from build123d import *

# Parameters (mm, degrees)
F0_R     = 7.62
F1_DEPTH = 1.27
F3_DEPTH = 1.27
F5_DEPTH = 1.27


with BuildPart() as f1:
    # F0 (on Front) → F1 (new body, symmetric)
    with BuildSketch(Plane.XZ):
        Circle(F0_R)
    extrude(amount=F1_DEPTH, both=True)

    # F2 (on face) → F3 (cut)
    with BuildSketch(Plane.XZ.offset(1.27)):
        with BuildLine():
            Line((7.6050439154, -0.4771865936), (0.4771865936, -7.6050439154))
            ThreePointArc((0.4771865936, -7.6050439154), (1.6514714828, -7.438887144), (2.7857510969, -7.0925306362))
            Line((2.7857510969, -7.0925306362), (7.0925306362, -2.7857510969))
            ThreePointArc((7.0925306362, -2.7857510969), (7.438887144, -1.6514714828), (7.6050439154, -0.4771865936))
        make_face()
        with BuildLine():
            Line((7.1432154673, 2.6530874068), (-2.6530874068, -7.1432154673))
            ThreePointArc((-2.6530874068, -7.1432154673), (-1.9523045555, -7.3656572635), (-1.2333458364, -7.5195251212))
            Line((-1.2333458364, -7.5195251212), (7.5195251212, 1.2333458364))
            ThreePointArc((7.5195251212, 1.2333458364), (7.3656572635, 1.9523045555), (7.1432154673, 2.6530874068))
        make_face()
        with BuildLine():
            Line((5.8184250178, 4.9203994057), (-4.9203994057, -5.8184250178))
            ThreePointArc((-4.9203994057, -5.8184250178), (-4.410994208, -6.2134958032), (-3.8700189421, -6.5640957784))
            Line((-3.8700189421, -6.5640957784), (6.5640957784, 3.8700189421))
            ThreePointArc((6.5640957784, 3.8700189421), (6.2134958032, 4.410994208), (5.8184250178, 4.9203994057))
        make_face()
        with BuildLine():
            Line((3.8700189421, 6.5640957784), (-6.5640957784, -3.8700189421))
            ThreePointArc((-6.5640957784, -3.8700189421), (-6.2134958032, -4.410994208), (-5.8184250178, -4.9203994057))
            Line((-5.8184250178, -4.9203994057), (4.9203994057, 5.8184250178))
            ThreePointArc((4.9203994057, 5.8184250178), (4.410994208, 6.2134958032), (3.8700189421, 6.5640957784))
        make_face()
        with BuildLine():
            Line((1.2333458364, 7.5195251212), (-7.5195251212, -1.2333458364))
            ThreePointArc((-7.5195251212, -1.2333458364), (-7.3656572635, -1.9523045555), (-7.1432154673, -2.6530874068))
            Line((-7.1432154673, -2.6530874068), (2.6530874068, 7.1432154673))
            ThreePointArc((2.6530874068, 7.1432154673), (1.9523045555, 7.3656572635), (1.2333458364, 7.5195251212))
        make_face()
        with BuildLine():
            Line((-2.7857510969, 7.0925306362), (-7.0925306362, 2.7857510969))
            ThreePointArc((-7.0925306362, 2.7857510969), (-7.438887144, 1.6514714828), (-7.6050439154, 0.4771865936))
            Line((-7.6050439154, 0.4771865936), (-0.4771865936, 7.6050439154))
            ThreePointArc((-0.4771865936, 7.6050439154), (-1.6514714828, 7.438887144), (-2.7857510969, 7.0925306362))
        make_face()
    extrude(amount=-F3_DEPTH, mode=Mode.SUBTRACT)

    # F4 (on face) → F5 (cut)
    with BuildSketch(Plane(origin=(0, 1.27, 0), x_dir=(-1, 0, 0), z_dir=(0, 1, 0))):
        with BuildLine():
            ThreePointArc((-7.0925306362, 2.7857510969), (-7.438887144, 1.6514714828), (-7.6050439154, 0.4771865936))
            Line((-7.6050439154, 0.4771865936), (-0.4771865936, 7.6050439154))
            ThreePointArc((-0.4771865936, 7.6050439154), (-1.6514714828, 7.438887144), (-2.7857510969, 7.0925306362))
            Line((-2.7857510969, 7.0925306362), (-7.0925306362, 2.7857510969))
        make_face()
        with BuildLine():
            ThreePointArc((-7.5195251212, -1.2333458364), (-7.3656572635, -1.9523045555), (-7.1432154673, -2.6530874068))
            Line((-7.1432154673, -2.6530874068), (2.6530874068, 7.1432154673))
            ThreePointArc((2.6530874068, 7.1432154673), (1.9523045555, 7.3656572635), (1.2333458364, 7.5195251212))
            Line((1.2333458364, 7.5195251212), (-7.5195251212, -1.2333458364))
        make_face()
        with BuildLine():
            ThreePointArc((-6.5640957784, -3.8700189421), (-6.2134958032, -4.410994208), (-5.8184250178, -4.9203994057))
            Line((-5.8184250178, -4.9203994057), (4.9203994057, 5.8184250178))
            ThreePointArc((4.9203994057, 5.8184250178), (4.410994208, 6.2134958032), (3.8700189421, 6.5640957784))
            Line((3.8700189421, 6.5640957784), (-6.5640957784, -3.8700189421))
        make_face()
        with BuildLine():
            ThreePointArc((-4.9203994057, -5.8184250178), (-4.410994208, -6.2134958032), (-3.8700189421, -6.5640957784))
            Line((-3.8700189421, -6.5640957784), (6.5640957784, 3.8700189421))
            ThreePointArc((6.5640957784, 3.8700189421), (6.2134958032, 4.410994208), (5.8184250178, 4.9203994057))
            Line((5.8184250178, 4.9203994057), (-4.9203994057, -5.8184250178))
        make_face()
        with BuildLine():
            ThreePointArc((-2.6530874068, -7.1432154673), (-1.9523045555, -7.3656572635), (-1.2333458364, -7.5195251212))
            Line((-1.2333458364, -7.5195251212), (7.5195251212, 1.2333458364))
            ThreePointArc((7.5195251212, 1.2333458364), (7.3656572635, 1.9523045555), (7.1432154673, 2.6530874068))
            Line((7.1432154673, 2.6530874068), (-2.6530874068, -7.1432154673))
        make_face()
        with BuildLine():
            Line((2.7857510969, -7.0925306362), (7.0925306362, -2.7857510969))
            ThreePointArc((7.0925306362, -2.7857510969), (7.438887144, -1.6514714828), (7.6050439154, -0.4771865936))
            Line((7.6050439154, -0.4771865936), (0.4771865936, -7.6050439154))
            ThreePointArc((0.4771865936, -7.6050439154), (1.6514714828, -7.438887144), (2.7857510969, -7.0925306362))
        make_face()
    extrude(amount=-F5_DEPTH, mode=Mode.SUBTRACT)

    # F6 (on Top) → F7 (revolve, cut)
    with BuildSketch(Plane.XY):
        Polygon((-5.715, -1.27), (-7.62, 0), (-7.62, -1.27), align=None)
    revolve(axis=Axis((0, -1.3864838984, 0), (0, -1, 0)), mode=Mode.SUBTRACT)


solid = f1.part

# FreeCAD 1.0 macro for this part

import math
import FreeCAD as App
import Part
import Sketcher
from FreeCAD import Vector
Q = App.Units.Quantity


def add_polygon(sketch, points):
    """Adds a closed chain of lines whose ends are joined by coincident constraints."""
    first, n = sketch.GeometryCount, len(points)
    for a, b in zip(points, points[1:] + points[:1]):
        sketch.addGeometry(Part.LineSegment(App.Vector(*a, 0), App.Vector(*b, 0)), False)
    for i in range(n):
        sketch.addConstraint(Sketcher.Constraint("Coincident", first + i, 2, first + (i + 1) % n, 1))

doc = App.newDocument("Part")
body = doc.addObject("PartDesign::Body", "Body")

# Sketch on XZ plane
sketch1 = body.newObject("Sketcher::SketchObject", "Sketch")
sketch1.AttachmentSupport = (doc.getObject("XZ_Plane"), [""])
sketch1.MapMode = "FlatFace"
sketch1.addGeometry(Part.Circle(Vector(0, 0, 0), Vector(0, 0, 1), 8), False)
sketch1.addConstraint([
    Sketcher.Constraint("Coincident", 0, 3, -1, 1),
    Sketcher.Constraint("Diameter", 0, Q("0.6 in")),
])
pad1 = body.newObject("PartDesign::Pad", "Pad")
pad1.Profile = sketch1
pad1.Length = Q("0.1 in")
pad1.Midplane = True

# Sketch on XZ plane
sketch2 = body.newObject("Sketcher::SketchObject", "Sketch001")
sketch2.AttachmentSupport = (doc.getObject("XZ_Plane"), [""])
sketch2.MapMode = "FlatFace"
sketch2.AttachmentOffset = App.Placement(Vector(0, 0, 0.05 * 25.4), App.Rotation())
sketch2.addGeometry([
    Part.LineSegment(Vector(7.6, -0.5, 0), Vector(0.5, -7.6, 0)),  # 0
    Part.ArcOfCircle(Part.Circle(Vector(0, 0, 0), Vector(0, 0, 1), 7.6), math.radians(-86.41), math.radians(-68.56)),  # 1
    Part.LineSegment(Vector(2.8, -7.1, 0), Vector(7.1, -2.8, 0)),  # 2
    Part.ArcOfCircle(Part.Circle(Vector(0, 0, 0), Vector(0, 0, 1), 7.6), math.radians(-21.44), math.radians(-3.59)),  # 3
    Part.LineSegment(Vector(7.1, 2.7, 0), Vector(-2.7, -7.1, 0)),  # 4
    Part.ArcOfCircle(Part.Circle(Vector(0, 0, 0), Vector(0, 0, 1), 7.6), math.radians(-110.38), math.radians(-99.31)),  # 5
    Part.LineSegment(Vector(-1.2, -7.5, 0), Vector(7.5, 1.2, 0)),  # 6
    Part.ArcOfCircle(Part.Circle(Vector(0, 0, 0), Vector(0, 0, 1), 7.6), math.radians(9.31), math.radians(20.38)),  # 7
    Part.LineSegment(Vector(5.8, 4.9, 0), Vector(-4.9, -5.8, 0)),  # 8
    Part.ArcOfCircle(Part.Circle(Vector(0, 0, 0), Vector(0, 0, 1), 7.6), math.radians(-130.22), math.radians(-120.52)),  # 9
    Part.LineSegment(Vector(-3.9, -6.6, 0), Vector(6.6, 3.9, 0)),  # 10
    Part.ArcOfCircle(Part.Circle(Vector(0, 0, 0), Vector(0, 0, 1), 7.6), math.radians(30.52), math.radians(40.22)),  # 11
    Part.LineSegment(Vector(3.9, 6.6, 0), Vector(-6.6, -3.9, 0)),  # 12
    Part.ArcOfCircle(Part.Circle(Vector(0, 0, 0), Vector(0, 0, 1), 7.6), math.radians(-149.48), math.radians(-139.78)),  # 13
    Part.LineSegment(Vector(-5.8, -4.9, 0), Vector(4.9, 5.8, 0)),  # 14
    Part.ArcOfCircle(Part.Circle(Vector(0, 0, 0), Vector(0, 0, 1), 7.6), math.radians(49.78), math.radians(59.48)),  # 15
    Part.LineSegment(Vector(1.2, 7.5, 0), Vector(-7.5, -1.2, 0)),  # 16
    Part.ArcOfCircle(Part.Circle(Vector(0, 0, 0), Vector(0, 0, 1), 7.6), math.radians(-170.69), math.radians(-159.62)),  # 17
    Part.LineSegment(Vector(-7.1, -2.7, 0), Vector(2.7, 7.1, 0)),  # 18
    Part.ArcOfCircle(Part.Circle(Vector(0, 0, 0), Vector(0, 0, 1), 7.6), math.radians(69.62), math.radians(80.69)),  # 19
    Part.LineSegment(Vector(-2.8, 7.1, 0), Vector(-7.1, 2.8, 0)),  # 20
    Part.ArcOfCircle(Part.Circle(Vector(0, 0, 0), Vector(0, 0, 1), 7.6), math.radians(158.56), math.radians(176.41)),  # 21
    Part.LineSegment(Vector(-7.6, 0.5, 0), Vector(-0.5, 7.6, 0)),  # 22
    Part.ArcOfCircle(Part.Circle(Vector(0, 0, 0), Vector(0, 0, 1), 7.6), math.radians(93.59), math.radians(111.44)),  # 23
], False)
sketch2.addConstraint([
    Sketcher.Constraint("Coincident", 0, 2, 1, 1),
    Sketcher.Constraint("Coincident", 1, 2, 2, 1),
    Sketcher.Constraint("Coincident", 2, 2, 3, 1),
    Sketcher.Constraint("Coincident", 3, 2, 0, 1),
    Sketcher.Constraint("Coincident", 4, 2, 5, 1),
    Sketcher.Constraint("Coincident", 5, 2, 6, 1),
    Sketcher.Constraint("Coincident", 6, 2, 7, 1),
    Sketcher.Constraint("Coincident", 7, 2, 4, 1),
    Sketcher.Constraint("Coincident", 8, 2, 9, 1),
    Sketcher.Constraint("Coincident", 9, 2, 10, 1),
    Sketcher.Constraint("Coincident", 10, 2, 11, 1),
    Sketcher.Constraint("Coincident", 11, 2, 8, 1),
    Sketcher.Constraint("Coincident", 12, 2, 13, 1),
    Sketcher.Constraint("Coincident", 13, 2, 14, 1),
    Sketcher.Constraint("Coincident", 14, 2, 15, 1),
    Sketcher.Constraint("Coincident", 15, 2, 12, 1),
    Sketcher.Constraint("Coincident", 16, 2, 17, 1),
    Sketcher.Constraint("Coincident", 17, 2, 18, 1),
    Sketcher.Constraint("Coincident", 18, 2, 19, 1),
    Sketcher.Constraint("Coincident", 19, 2, 16, 1),
    Sketcher.Constraint("Coincident", 20, 2, 21, 1),
    Sketcher.Constraint("Coincident", 21, 2, 22, 1),
    Sketcher.Constraint("Coincident", 22, 2, 23, 1),
    Sketcher.Constraint("Coincident", 23, 2, 20, 1),
    Sketcher.Constraint("Coincident", 1, 3, -1, 1),
    Sketcher.Constraint("Coincident", 3, 3, -1, 1),
    Sketcher.Constraint("Coincident", 5, 3, -1, 1),
    Sketcher.Constraint("Coincident", 7, 3, -1, 1),
    Sketcher.Constraint("Coincident", 9, 3, -1, 1),
    Sketcher.Constraint("Coincident", 11, 3, -1, 1),
    Sketcher.Constraint("Coincident", 13, 3, -1, 1),
    Sketcher.Constraint("Coincident", 15, 3, -1, 1),
    Sketcher.Constraint("Coincident", 17, 3, -1, 1),
    Sketcher.Constraint("Coincident", 19, 3, -1, 1),
    Sketcher.Constraint("Coincident", 21, 3, -1, 1),
    Sketcher.Constraint("Coincident", 23, 3, -1, 1),
    Sketcher.Constraint("Equal", 1, 3),
    Sketcher.Constraint("Equal", 3, 5),
    Sketcher.Constraint("Equal", 5, 7),
    Sketcher.Constraint("Equal", 7, 9),
    Sketcher.Constraint("Equal", 9, 11),
    Sketcher.Constraint("Equal", 11, 13),
    Sketcher.Constraint("Equal", 13, 15),
    Sketcher.Constraint("Equal", 15, 17),
    Sketcher.Constraint("Equal", 17, 19),
    Sketcher.Constraint("Equal", 19, 21),
    Sketcher.Constraint("Equal", 21, 23),
    Sketcher.Constraint("Parallel", 0, 2),
    Sketcher.Constraint("Parallel", 2, 4),
    Sketcher.Constraint("Parallel", 4, 6),
    Sketcher.Constraint("Parallel", 6, 8),
    Sketcher.Constraint("Parallel", 8, 10),
    Sketcher.Constraint("Parallel", 10, 12),
    Sketcher.Constraint("Parallel", 12, 14),
    Sketcher.Constraint("Parallel", 14, 16),
    Sketcher.Constraint("Parallel", 16, 18),
    Sketcher.Constraint("Parallel", 18, 20),
    Sketcher.Constraint("Parallel", 20, 22),
    Sketcher.Constraint("Equal", 10, 12),
    Sketcher.Constraint("Equal", 8, 14),
    Sketcher.Constraint("Equal", 6, 16),
    Sketcher.Constraint("Equal", 4, 18),
    Sketcher.Constraint("Equal", 2, 20),
    Sketcher.Constraint("Equal", 0, 22),
    Sketcher.Constraint("Radius", 1, Q("0.3 in")),
    Sketcher.Constraint("Angle", 0, Q("-135 deg")),
    Sketcher.Constraint("DistanceY", 4, 2, 9, 2, Q("0.0228 in")),
    Sketcher.Constraint("DistanceX", 8, 2, -1, 1, Q("4.920399 mm")),
    Sketcher.Constraint("DistanceY", 5, 2, 8, 2, Q("1.7011 mm")),
    Sketcher.Constraint("DistanceX", -1, 1, 1, 2, Q("2.785751 mm")),
    Sketcher.Constraint("DistanceX", 9, 2, -1, 1, Q("3.870019 mm")),
    Sketcher.Constraint("DistanceY", 0, 2, 4, 2, Q("0.461828 mm")),
])
pocket1 = body.newObject("PartDesign::Pocket", "Pocket")
pocket1.Profile = sketch2
pocket1.Length = Q("0.05 in")

# Sketch on XZ plane
sketch3 = body.newObject("Sketcher::SketchObject", "Sketch002")
sketch3.AttachmentSupport = (doc.getObject("XZ_Plane"), [""])
sketch3.MapMode = "FlatFace"
sketch3.AttachmentOffset = App.Placement(Vector(0, 0, -0.05 * 25.4), App.Rotation())
sketch3.addGeometry([
    Part.ArcOfCircle(Part.Circle(Vector(0, 0, 0), Vector(0, 0, 1), 7.6), math.radians(3.59), math.radians(21.44)),  # 0
    Part.LineSegment(Vector(7.6, 0.5, 0), Vector(0.5, 7.6, 0)),  # 1
    Part.ArcOfCircle(Part.Circle(Vector(0, 0, 0), Vector(0, 0, 1), 7.6), math.radians(68.56), math.radians(86.41)),  # 2
    Part.LineSegment(Vector(2.8, 7.1, 0), Vector(7.1, 2.8, 0)),  # 3
    Part.ArcOfCircle(Part.Circle(Vector(0, 0, 0), Vector(0, 0, 1), 7.6), math.radians(-20.38), math.radians(-9.31)),  # 4
    Part.LineSegment(Vector(7.1, -2.7, 0), Vector(-2.7, 7.1, 0)),  # 5
    Part.ArcOfCircle(Part.Circle(Vector(0, 0, 0), Vector(0, 0, 1), 7.6), math.radians(99.31), math.radians(110.38)),  # 6
    Part.LineSegment(Vector(-1.2, 7.5, 0), Vector(7.5, -1.2, 0)),  # 7
    Part.ArcOfCircle(Part.Circle(Vector(0, 0, 0), Vector(0, 0, 1), 7.6), math.radians(-40.22), math.radians(-30.52)),  # 8
    Part.LineSegment(Vector(5.8, -4.9, 0), Vector(-4.9, 5.8, 0)),  # 9
    Part.ArcOfCircle(Part.Circle(Vector(0, 0, 0), Vector(0, 0, 1), 7.6), math.radians(120.52), math.radians(130.22)),  # 10
    Part.LineSegment(Vector(-3.9, 6.6, 0), Vector(6.6, -3.9, 0)),  # 11
    Part.ArcOfCircle(Part.Circle(Vector(0, 0, 0), Vector(0, 0, 1), 7.6), math.radians(-59.48), math.radians(-49.78)),  # 12
    Part.LineSegment(Vector(3.9, -6.6, 0), Vector(-6.6, 3.9, 0)),  # 13
    Part.ArcOfCircle(Part.Circle(Vector(0, 0, 0), Vector(0, 0, 1), 7.6), math.radians(139.78), math.radians(149.48)),  # 14
    Part.LineSegment(Vector(-5.8, 4.9, 0), Vector(4.9, -5.8, 0)),  # 15
    Part.ArcOfCircle(Part.Circle(Vector(0, 0, 0), Vector(0, 0, 1), 7.6), math.radians(-80.69), math.radians(-69.62)),  # 16
    Part.LineSegment(Vector(1.2, -7.5, 0), Vector(-7.5, 1.2, 0)),  # 17
    Part.ArcOfCircle(Part.Circle(Vector(0, 0, 0), Vector(0, 0, 1), 7.6), math.radians(159.62), math.radians(170.69)),  # 18
    Part.LineSegment(Vector(-7.1, 2.7, 0), Vector(2.7, -7.1, 0)),  # 19
    Part.LineSegment(Vector(-2.8, -7.1, 0), Vector(-7.1, -2.8, 0)),  # 20
    Part.ArcOfCircle(Part.Circle(Vector(0, 0, 0), Vector(0, 0, 1), 7.6), math.radians(-176.41), math.radians(-158.56)),  # 21
    Part.LineSegment(Vector(-7.6, -0.5, 0), Vector(-0.5, -7.6, 0)),  # 22
    Part.ArcOfCircle(Part.Circle(Vector(0, 0, 0), Vector(0, 0, 1), 7.6), math.radians(-111.44), math.radians(-93.59)),  # 23
], False)
sketch3.addConstraint([
    Sketcher.Constraint("Coincident", 0, 1, 1, 1),
    Sketcher.Constraint("Coincident", 1, 2, 2, 2),
    Sketcher.Constraint("Coincident", 2, 1, 3, 1),
    Sketcher.Constraint("Coincident", 3, 2, 0, 2),
    Sketcher.Constraint("Coincident", 4, 1, 5, 1),
    Sketcher.Constraint("Coincident", 5, 2, 6, 2),
    Sketcher.Constraint("Coincident", 6, 1, 7, 1),
    Sketcher.Constraint("Coincident", 7, 2, 4, 2),
    Sketcher.Constraint("Coincident", 8, 1, 9, 1),
    Sketcher.Constraint("Coincident", 9, 2, 10, 2),
    Sketcher.Constraint("Coincident", 10, 1, 11, 1),
    Sketcher.Constraint("Coincident", 11, 2, 8, 2),
    Sketcher.Constraint("Coincident", 12, 1, 13, 1),
    Sketcher.Constraint("Coincident", 13, 2, 14, 2),
    Sketcher.Constraint("Coincident", 14, 1, 15, 1),
    Sketcher.Constraint("Coincident", 15, 2, 12, 2),
    Sketcher.Constraint("Coincident", 16, 1, 17, 1),
    Sketcher.Constraint("Coincident", 17, 2, 18, 2),
    Sketcher.Constraint("Coincident", 18, 1, 19, 1),
    Sketcher.Constraint("Coincident", 19, 2, 16, 2),
    Sketcher.Constraint("Coincident", 20, 2, 21, 2),
    Sketcher.Constraint("Coincident", 21, 1, 22, 1),
    Sketcher.Constraint("Coincident", 22, 2, 23, 2),
    Sketcher.Constraint("Coincident", 23, 1, 20, 1),
    Sketcher.Constraint("Coincident", 0, 3, -1, 1),
    Sketcher.Constraint("Coincident", 2, 3, -1, 1),
    Sketcher.Constraint("Coincident", 4, 3, -1, 1),
    Sketcher.Constraint("Coincident", 6, 3, -1, 1),
    Sketcher.Constraint("Coincident", 8, 3, -1, 1),
    Sketcher.Constraint("Coincident", 10, 3, -1, 1),
    Sketcher.Constraint("Coincident", 12, 3, -1, 1),
    Sketcher.Constraint("Coincident", 14, 3, -1, 1),
    Sketcher.Constraint("Coincident", 16, 3, -1, 1),
    Sketcher.Constraint("Coincident", 18, 3, -1, 1),
    Sketcher.Constraint("Coincident", 21, 3, -1, 1),
    Sketcher.Constraint("Coincident", 23, 3, -1, 1),
    Sketcher.Constraint("Equal", 0, 2),
    Sketcher.Constraint("Equal", 2, 4),
    Sketcher.Constraint("Equal", 4, 6),
    Sketcher.Constraint("Equal", 6, 8),
    Sketcher.Constraint("Equal", 8, 10),
    Sketcher.Constraint("Equal", 10, 12),
    Sketcher.Constraint("Equal", 12, 14),
    Sketcher.Constraint("Equal", 14, 16),
    Sketcher.Constraint("Equal", 16, 18),
    Sketcher.Constraint("Equal", 18, 21),
    Sketcher.Constraint("Equal", 21, 23),
    Sketcher.Constraint("Parallel", 1, 3),
    Sketcher.Constraint("Parallel", 3, 5),
    Sketcher.Constraint("Parallel", 5, 7),
    Sketcher.Constraint("Parallel", 7, 9),
    Sketcher.Constraint("Parallel", 9, 11),
    Sketcher.Constraint("Parallel", 11, 13),
    Sketcher.Constraint("Parallel", 13, 15),
    Sketcher.Constraint("Parallel", 15, 17),
    Sketcher.Constraint("Parallel", 17, 19),
    Sketcher.Constraint("Parallel", 19, 20),
    Sketcher.Constraint("Parallel", 20, 22),
    Sketcher.Constraint("Equal", 11, 13),
    Sketcher.Constraint("Equal", 9, 15),
    Sketcher.Constraint("Equal", 7, 17),
    Sketcher.Constraint("Equal", 5, 19),
    Sketcher.Constraint("Equal", 3, 20),
    Sketcher.Constraint("Equal", 1, 22),
    Sketcher.Constraint("Radius", 0, Q("0.3 in")),
    Sketcher.Constraint("Angle", 1, Q("135 deg")),
    Sketcher.Constraint("DistanceY", 10, 1, 5, 2, Q("0.0228 in")),
    Sketcher.Constraint("DistanceY", 8, 1, -1, 1, Q("4.920399 mm")),
    Sketcher.Constraint("DistanceX", 8, 1, 7, 2, Q("1.7011 mm")),
    Sketcher.Constraint("DistanceX", -1, 1, 2, 1, Q("2.785751 mm")),
    Sketcher.Constraint("DistanceX", 10, 1, -1, 1, Q("3.870019 mm")),
    Sketcher.Constraint("DistanceX", 4, 1, 0, 1, Q("0.461828 mm")),
])
pocket2 = body.newObject("PartDesign::Pocket", "Pocket001")
pocket2.Profile = sketch3
pocket2.Length = Q("0.05 in")
pocket2.Reversed = True

# Sketch on XY plane
sketch4 = body.newObject("Sketcher::SketchObject", "Sketch003")
sketch4.AttachmentSupport = (doc.getObject("XY_Plane"), [""])
sketch4.MapMode = "FlatFace"
add_polygon(sketch4, [(-5.7, -1.3), (-7.6, 0), (-7.6, -1.3)])  # lines 0-2
sketch4.addConstraint([
    Sketcher.Constraint("Vertical", 1),
    Sketcher.Constraint("Horizontal", 2),
    Sketcher.Constraint("PointOnObject", 0, 2, -1),
    Sketcher.Constraint("DistanceY", 1, 2, 1, 1, Q("0.05 in")),
    Sketcher.Constraint("DistanceX", 0, 2, -1, 1, Q("0.3 in")),
    Sketcher.Constraint("DistanceX", 2, 1, 2, 2, Q("0.075 in")),
])
groove = body.newObject("PartDesign::Groove", "Groove")
groove.Profile = sketch4
groove.ReferenceAxis = (sketch4, ["V_Axis"])
groove.Angle = 360

doc.recompute()
